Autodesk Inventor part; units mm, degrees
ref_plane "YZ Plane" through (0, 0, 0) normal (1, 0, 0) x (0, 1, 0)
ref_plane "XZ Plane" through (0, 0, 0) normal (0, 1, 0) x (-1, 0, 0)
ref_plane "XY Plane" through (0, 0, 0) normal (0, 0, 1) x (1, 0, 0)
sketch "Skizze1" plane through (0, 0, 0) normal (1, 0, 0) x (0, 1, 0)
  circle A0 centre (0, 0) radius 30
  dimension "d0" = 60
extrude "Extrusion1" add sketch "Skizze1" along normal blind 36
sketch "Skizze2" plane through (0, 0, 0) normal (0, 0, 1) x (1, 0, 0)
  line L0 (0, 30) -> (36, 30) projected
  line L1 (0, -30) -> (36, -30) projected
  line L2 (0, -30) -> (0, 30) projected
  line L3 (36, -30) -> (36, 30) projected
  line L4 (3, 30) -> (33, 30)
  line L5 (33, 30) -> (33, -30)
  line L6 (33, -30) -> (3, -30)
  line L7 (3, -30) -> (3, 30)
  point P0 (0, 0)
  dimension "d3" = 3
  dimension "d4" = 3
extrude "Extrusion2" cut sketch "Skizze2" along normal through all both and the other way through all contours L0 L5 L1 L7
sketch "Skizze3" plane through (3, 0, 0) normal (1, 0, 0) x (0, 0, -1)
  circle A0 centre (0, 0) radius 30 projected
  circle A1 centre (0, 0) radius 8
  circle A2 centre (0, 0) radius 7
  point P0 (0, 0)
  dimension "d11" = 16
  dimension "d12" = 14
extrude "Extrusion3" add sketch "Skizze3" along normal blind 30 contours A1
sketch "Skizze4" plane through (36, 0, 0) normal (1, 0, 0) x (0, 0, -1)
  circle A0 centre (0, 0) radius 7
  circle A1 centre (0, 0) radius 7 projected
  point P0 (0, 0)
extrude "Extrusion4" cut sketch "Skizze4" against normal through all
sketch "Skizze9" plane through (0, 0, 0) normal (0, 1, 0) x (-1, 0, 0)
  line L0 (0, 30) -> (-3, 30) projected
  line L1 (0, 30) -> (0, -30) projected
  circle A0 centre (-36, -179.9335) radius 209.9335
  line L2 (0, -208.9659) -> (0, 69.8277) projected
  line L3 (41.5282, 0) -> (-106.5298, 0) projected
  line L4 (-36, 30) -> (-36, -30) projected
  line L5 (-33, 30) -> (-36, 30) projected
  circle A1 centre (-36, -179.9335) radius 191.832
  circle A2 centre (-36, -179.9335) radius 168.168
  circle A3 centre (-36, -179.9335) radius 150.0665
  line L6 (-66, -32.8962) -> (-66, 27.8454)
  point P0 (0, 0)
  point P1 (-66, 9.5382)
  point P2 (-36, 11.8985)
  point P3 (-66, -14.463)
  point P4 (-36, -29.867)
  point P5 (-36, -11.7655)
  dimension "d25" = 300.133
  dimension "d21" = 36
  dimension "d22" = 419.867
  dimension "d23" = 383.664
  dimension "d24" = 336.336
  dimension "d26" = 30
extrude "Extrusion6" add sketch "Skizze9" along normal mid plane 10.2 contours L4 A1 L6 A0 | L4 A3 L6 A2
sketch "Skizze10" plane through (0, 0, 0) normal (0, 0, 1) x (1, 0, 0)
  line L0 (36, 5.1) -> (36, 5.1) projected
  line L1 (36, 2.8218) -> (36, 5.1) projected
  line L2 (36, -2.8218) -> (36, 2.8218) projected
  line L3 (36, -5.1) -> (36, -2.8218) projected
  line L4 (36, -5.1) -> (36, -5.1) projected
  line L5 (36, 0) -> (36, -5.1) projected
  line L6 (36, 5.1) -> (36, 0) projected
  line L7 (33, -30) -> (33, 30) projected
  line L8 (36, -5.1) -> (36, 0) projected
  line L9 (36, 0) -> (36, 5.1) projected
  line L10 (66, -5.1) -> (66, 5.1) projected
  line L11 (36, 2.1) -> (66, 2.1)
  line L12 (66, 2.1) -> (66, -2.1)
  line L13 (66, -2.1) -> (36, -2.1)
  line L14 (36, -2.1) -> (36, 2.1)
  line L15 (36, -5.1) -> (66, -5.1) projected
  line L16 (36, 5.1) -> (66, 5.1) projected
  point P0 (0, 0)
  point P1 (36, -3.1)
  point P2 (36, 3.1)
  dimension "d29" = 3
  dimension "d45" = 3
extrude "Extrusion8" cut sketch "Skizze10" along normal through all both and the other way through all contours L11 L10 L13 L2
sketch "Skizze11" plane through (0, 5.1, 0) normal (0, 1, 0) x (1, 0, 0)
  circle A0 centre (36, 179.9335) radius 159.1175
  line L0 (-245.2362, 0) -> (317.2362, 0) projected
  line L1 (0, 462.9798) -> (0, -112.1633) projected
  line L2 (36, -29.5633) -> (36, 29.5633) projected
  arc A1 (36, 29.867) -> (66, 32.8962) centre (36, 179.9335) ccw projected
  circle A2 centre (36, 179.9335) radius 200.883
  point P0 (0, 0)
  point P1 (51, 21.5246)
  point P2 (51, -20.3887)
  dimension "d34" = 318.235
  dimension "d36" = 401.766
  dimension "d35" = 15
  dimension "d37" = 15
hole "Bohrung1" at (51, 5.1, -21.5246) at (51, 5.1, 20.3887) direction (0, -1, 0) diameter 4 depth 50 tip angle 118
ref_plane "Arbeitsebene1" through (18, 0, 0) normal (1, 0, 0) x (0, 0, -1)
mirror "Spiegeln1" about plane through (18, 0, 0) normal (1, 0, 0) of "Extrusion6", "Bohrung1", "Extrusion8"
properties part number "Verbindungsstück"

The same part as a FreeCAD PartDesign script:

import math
import FreeCAD as App
import Part
import Sketcher
from FreeCAD import Vector

doc = App.newDocument("Part")
body = doc.addObject("PartDesign::Body", "Body")
body.AllowCompound = True

# Sketch on YZ plane
sketch1 = body.newObject("Sketcher::SketchObject", "Sketch")
sketch1.AttachmentSupport = (doc.getObject("YZ_Plane"), [""])
sketch1.MapMode = "FlatFace"
sketch1.addGeometry(Part.Circle(Vector(0, 0, 0), Vector(0, 0, 1), 30), False)
sketch1.addConstraint(Sketcher.Constraint("Coincident", 0, 3, -1, 1))
sketch1.addConstraint(Sketcher.Constraint("Diameter", 0, 60.0))
pad1 = body.newObject("PartDesign::Pad", "Pad")
pad1.Profile = sketch1
pad1.Length = 36

# Sketch on XY plane
sketch2 = body.newObject("Sketcher::SketchObject", "Sketch001")
sketch2.AttachmentSupport = (doc.getObject("XY_Plane"), [""])
sketch2.MapMode = "FlatFace"
sketch2.addGeometry(Part.LineSegment(Vector(33, 30, 0), Vector(3, 30, 0)), False)
sketch2.addGeometry(Part.LineSegment(Vector(3, 30, 0), Vector(3, -30, 0)), False)
sketch2.addGeometry(Part.LineSegment(Vector(3, -30, 0), Vector(33, -30, 0)), False)
sketch2.addGeometry(Part.LineSegment(Vector(33, -30, 0), Vector(33, 30, 0)), False)
sketch2.addConstraint(Sketcher.Constraint("Coincident", 0, 2, 1, 1))
sketch2.addConstraint(Sketcher.Constraint("Coincident", 1, 2, 2, 1))
sketch2.addConstraint(Sketcher.Constraint("Coincident", 2, 2, 3, 1))
sketch2.addConstraint(Sketcher.Constraint("Coincident", 3, 2, 0, 1))
sketch2.addConstraint(Sketcher.Constraint("Horizontal", 0))
sketch2.addConstraint(Sketcher.Constraint("Vertical", 1))
sketch2.addConstraint(Sketcher.Constraint("Horizontal", 2))
sketch2.addConstraint(Sketcher.Constraint("Vertical", 3))
sketch2.addConstraint(Sketcher.Constraint("DistanceX", -1, 1, 0, 2, 3.0))
sketch2.addConstraint(Sketcher.Constraint("DistanceX", 0, 2, 0, 1, 30.0))
sketch2.addConstraint(Sketcher.Constraint("DistanceY", 1, 2, 1, 1, 60.0))
sketch2.addConstraint(Sketcher.Constraint("DistanceY", -1, 1, 0, 2, 30.0))
pocket1 = body.newObject("PartDesign::Pocket", "Pocket")
pocket1.Profile = sketch2
pocket1.Type = "ThroughAll"
pocket1.Midplane = True

# Sketch on YZ plane
sketch3 = body.newObject("Sketcher::SketchObject", "Sketch002")
sketch3.AttachmentSupport = (doc.getObject("YZ_Plane"), [""])
sketch3.MapMode = "FlatFace"
sketch3.AttachmentOffset = App.Placement(Vector(0, 0, 3), App.Rotation())
sketch3.addGeometry(Part.Circle(Vector(0, 0, 0), Vector(0, 0, 1), 8), False)
sketch3.addGeometry(Part.Circle(Vector(0, 0, 0), Vector(0, 0, 1), 7), False)
sketch3.addConstraint(Sketcher.Constraint("Coincident", 0, 3, -1, 1))
sketch3.addConstraint(Sketcher.Constraint("Coincident", 1, 3, -1, 1))
sketch3.addConstraint(Sketcher.Constraint("Diameter", 0, 16.0))
sketch3.addConstraint(Sketcher.Constraint("Diameter", 1, 14.0))
pad2 = body.newObject("PartDesign::Pad", "Pad001")
pad2.Profile = sketch3
pad2.Length = 30

# Sketch on YZ plane
sketch4 = body.newObject("Sketcher::SketchObject", "Sketch003")
sketch4.AttachmentSupport = (doc.getObject("YZ_Plane"), [""])
sketch4.MapMode = "FlatFace"
sketch4.AttachmentOffset = App.Placement(Vector(0, 0, 36), App.Rotation())
sketch4.addGeometry(Part.Circle(Vector(0, 0, 0), Vector(0, 0, 1), 7), False)
sketch4.addConstraint(Sketcher.Constraint("Coincident", 0, 3, -1, 1))
sketch4.addConstraint(Sketcher.Constraint("Diameter", 0, 14.0))
pocket2 = body.newObject("PartDesign::Pocket", "Pocket001")
pocket2.Profile = sketch4
pocket2.Type = "ThroughAll"

# Sketch on XZ plane
sketch5 = body.newObject("Sketcher::SketchObject", "Sketch004")
sketch5.AttachmentSupport = (doc.getObject("XZ_Plane"), [""])
sketch5.MapMode = "FlatFace"
sketch5.addGeometry(Part.LineSegment(Vector(36, 12, 0), Vector(36, 30, 0)), False)
sketch5.addGeometry(Part.ArcOfCircle(Part.Circle(Vector(36, -180, 0), Vector(0, 0, 1), 210), math.radians(81.78), math.radians(90)), False)
sketch5.addGeometry(Part.LineSegment(Vector(66, 28, 0), Vector(66, 10, 0)), False)
sketch5.addGeometry(Part.ArcOfCircle(Part.Circle(Vector(36, -180, 0), Vector(0, 0, 1), 192), math.radians(81), math.radians(90)), False)
sketch5.addGeometry(Part.LineSegment(Vector(36, -30, 0), Vector(36, -12, 0)), False)
sketch5.addGeometry(Part.ArcOfCircle(Part.Circle(Vector(36, -180, 0), Vector(0, 0, 1), 168), math.radians(79.72), math.radians(90)), False)
sketch5.addGeometry(Part.LineSegment(Vector(66, -14, 0), Vector(66, -33, 0)), False)
sketch5.addGeometry(Part.ArcOfCircle(Part.Circle(Vector(36, -180, 0), Vector(0, 0, 1), 150), math.radians(78.47), math.radians(90)), False)
sketch5.addConstraint(Sketcher.Constraint("Coincident", 0, 2, 1, 2))
sketch5.addConstraint(Sketcher.Constraint("Coincident", 1, 1, 2, 1))
sketch5.addConstraint(Sketcher.Constraint("Coincident", 2, 2, 3, 1))
sketch5.addConstraint(Sketcher.Constraint("Coincident", 3, 2, 0, 1))
sketch5.addConstraint(Sketcher.Constraint("Coincident", 4, 2, 5, 2))
sketch5.addConstraint(Sketcher.Constraint("Coincident", 5, 1, 6, 1))
sketch5.addConstraint(Sketcher.Constraint("Coincident", 6, 2, 7, 1))
sketch5.addConstraint(Sketcher.Constraint("Coincident", 7, 2, 4, 1))
sketch5.addConstraint(Sketcher.Constraint("Vertical", 0))
sketch5.addConstraint(Sketcher.Constraint("Vertical", 2))
sketch5.addConstraint(Sketcher.Constraint("Vertical", 4))
sketch5.addConstraint(Sketcher.Constraint("Vertical", 6))
sketch5.addConstraint(Sketcher.Constraint("Coincident", 3, 3, 1, 3))
sketch5.addConstraint(Sketcher.Constraint("Coincident", 5, 3, 1, 3))
sketch5.addConstraint(Sketcher.Constraint("Coincident", 7, 3, 1, 3))
sketch5.addConstraint(Sketcher.Constraint("Vertical", 7, 3, 0, 2))
sketch5.addConstraint(Sketcher.Constraint("Vertical", 3, 2, 4, 2))
sketch5.addConstraint(Sketcher.Constraint("Vertical", 2, 2, 5, 1))
sketch5.addConstraint(Sketcher.Constraint("Equal", 0, 4))
sketch5.addConstraint(Sketcher.Constraint("DistanceX", -1, 1, 1, 3, 36.0))
sketch5.addConstraint(Sketcher.Constraint("DistanceY", -1, 1, 0, 2, 30.0))
sketch5.addConstraint(Sketcher.Constraint("Radius", 3, 191.832))
sketch5.addConstraint(Sketcher.Constraint("Radius", 5, 168.168))
sketch5.addConstraint(Sketcher.Constraint("DistanceX", 0, 2, 1, 1, 30.0))
sketch5.addConstraint(Sketcher.Constraint("Radius", 1, 209.9335))
pad3 = body.newObject("PartDesign::Pad", "Pad002")
pad3.Profile = sketch5
pad3.Length = 10.2
pad3.Midplane = True

# Sketch on XY plane
sketch6 = body.newObject("Sketcher::SketchObject", "Sketch005")
sketch6.AttachmentSupport = (doc.getObject("XY_Plane"), [""])
sketch6.MapMode = "FlatFace"
sketch6.addGeometry(Part.LineSegment(Vector(66, 2.1, 0), Vector(36, 2.1, 0)), False)
sketch6.addGeometry(Part.LineSegment(Vector(36, 2.1, 0), Vector(36, -2.1, 0)), False)
sketch6.addGeometry(Part.LineSegment(Vector(36, -2.1, 0), Vector(66, -2.1, 0)), False)
sketch6.addGeometry(Part.LineSegment(Vector(66, -2.1, 0), Vector(66, 2.1, 0)), False)
sketch6.addConstraint(Sketcher.Constraint("Coincident", 0, 2, 1, 1))
sketch6.addConstraint(Sketcher.Constraint("Coincident", 1, 2, 2, 1))
sketch6.addConstraint(Sketcher.Constraint("Coincident", 2, 2, 3, 1))
sketch6.addConstraint(Sketcher.Constraint("Coincident", 3, 2, 0, 1))
sketch6.addConstraint(Sketcher.Constraint("Horizontal", 0))
sketch6.addConstraint(Sketcher.Constraint("Vertical", 1))
sketch6.addConstraint(Sketcher.Constraint("Horizontal", 2))
sketch6.addConstraint(Sketcher.Constraint("Vertical", 3))
sketch6.addConstraint(Sketcher.Constraint("DistanceX", 0, 2, 0, 1, 30.0))
sketch6.addConstraint(Sketcher.Constraint("DistanceY", 1, 2, 1, 1, 4.2))
sketch6.addConstraint(Sketcher.Constraint("DistanceX", -1, 1, 0, 2, 36.0))
sketch6.addConstraint(Sketcher.Constraint("DistanceY", -1, 1, 0, 2, 2.1))
pocket3 = body.newObject("PartDesign::Pocket", "Pocket002")
pocket3.Profile = sketch6
pocket3.Type = "ThroughAll"
pocket3.Midplane = True

# Sketch on XZ plane
sketch7 = body.newObject("Sketcher::SketchObject", "Sketch006")
sketch7.AttachmentSupport = (doc.getObject("XZ_Plane"), [""])
sketch7.MapMode = "FlatFace"
sketch7.AttachmentOffset = App.Placement(Vector(0, 0, -5.1), App.Rotation())
sketch7.addGeometry(Part.Circle(Vector(51, -21.5, 0), Vector(0, 0, 1), 2), False)
sketch7.addGeometry(Part.Circle(Vector(51, 20.4, 0), Vector(0, 0, 1), 2), False)
sketch7.addConstraint(Sketcher.Constraint("Equal", 0, 1))
sketch7.addConstraint(Sketcher.Constraint("Vertical", 0, 3, 1, 3))
sketch7.addConstraint(Sketcher.Constraint("Diameter", 0, 4.0))
sketch7.addConstraint(Sketcher.Constraint("DistanceX", -1, 1, 0, 3, 51.0))
sketch7.addConstraint(Sketcher.Constraint("DistanceY", 0, 3, -1, 1, 21.5246))
sketch7.addConstraint(Sketcher.Constraint("DistanceY", -1, 1, 1, 3, 20.3887))
doc.recompute()
hole = body.newObject("PartDesign::Hole", "Hole")
hole.Profile = sketch7
hole.ThreadType = "None"
hole.Diameter = 4
hole.DepthType = "Dimension"
hole.Depth = 50
hole.DrillPoint = "Angled"
hole.DrillPointAngle = 118
hole.Reversed = True
doc.recompute()

datumplane = body.newObject("PartDesign::Plane", "DatumPlane")
datumplane.AttachmentSupport = (doc.getObject("YZ_Plane"), [""])
datumplane.MapMode = "FlatFace"
datumplane.AttachmentOffset = App.Placement(Vector(0, 0, 18), App.Rotation())
mirrored = body.newObject("PartDesign::Mirrored", "Mirrored")
mirrored.Originals = [pad3, hole, pocket3]
mirrored.MirrorPlane = (datumplane, [""])
body.Tip = mirrored

doc.recompute()
